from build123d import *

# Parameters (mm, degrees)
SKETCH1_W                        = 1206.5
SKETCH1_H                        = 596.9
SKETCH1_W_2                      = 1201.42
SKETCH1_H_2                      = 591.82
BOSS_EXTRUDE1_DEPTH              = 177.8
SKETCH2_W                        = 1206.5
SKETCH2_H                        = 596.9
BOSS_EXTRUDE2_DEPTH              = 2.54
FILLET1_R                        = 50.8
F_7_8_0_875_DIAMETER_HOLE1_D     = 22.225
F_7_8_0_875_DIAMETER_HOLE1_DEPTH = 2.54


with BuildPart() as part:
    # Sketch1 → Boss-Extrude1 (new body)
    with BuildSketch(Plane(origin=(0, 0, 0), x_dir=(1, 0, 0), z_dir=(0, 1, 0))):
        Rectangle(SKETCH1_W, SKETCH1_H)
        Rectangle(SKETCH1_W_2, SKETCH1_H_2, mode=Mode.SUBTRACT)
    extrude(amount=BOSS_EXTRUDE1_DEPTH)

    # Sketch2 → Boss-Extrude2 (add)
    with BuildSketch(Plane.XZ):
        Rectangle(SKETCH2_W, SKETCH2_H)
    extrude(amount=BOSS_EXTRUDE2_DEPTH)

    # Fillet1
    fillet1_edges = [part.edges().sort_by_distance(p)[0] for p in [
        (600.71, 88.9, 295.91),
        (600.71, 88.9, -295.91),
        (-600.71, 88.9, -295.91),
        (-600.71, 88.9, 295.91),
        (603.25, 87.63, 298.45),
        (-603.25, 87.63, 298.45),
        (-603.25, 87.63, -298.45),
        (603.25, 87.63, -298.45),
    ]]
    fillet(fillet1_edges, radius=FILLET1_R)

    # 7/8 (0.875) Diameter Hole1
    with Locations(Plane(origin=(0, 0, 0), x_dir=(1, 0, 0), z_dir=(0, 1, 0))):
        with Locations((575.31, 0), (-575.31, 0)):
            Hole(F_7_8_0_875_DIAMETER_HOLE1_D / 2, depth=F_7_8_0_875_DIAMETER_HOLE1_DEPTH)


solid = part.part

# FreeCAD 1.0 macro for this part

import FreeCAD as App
import Part
import Sketcher
Q = App.Units.Quantity


def edges_at(feature, points):
    """Names of the edges that pass closest to the given points."""
    edges = feature.Shape.Edges
    near = lambda p: min(range(len(edges)), key=lambda i: edges[i].distToShape(Part.Vertex(*p))[0])
    return sorted({f"Edge{near(p) + 1}" for p in points})


def add_polygon(sketch, points):
    """Adds a closed chain of lines whose ends are joined by coincident constraints."""
    first, n = sketch.GeometryCount, len(points)
    for a, b in zip(points, points[1:] + points[:1]):
        sketch.addGeometry(Part.LineSegment(App.Vector(*a, 0), App.Vector(*b, 0)), False)
    for i in range(n):
        sketch.addConstraint(Sketcher.Constraint("Coincident", first + i, 2, first + (i + 1) % n, 1))

doc = App.newDocument("Part")
body = doc.addObject("PartDesign::Body", "Body")

# Sketch on XZ plane
sketch1 = body.newObject("Sketcher::SketchObject", "Sketch")
sketch1.AttachmentSupport = (doc.getObject("XZ_Plane"), [""])
sketch1.MapMode = "FlatFace"
add_polygon(sketch1, [(-603.25, -298.45), (-603.25, 298.45), (603.25, 298.45), (603.25, -298.45)])  # lines 0-3
add_polygon(sketch1, [(600.71, 295.91), (-600.71, 295.91), (-600.71, -295.91), (600.71, -295.91)])  # lines 4-7
sketch1.addConstraint(Sketcher.Constraint("Vertical", 0))
sketch1.addConstraint(Sketcher.Constraint("Horizontal", 1))
sketch1.addConstraint(Sketcher.Constraint("Vertical", 2))
sketch1.addConstraint(Sketcher.Constraint("Horizontal", 3))
sketch1.addConstraint(Sketcher.Constraint("Horizontal", 4))
sketch1.addConstraint(Sketcher.Constraint("Vertical", 5))
sketch1.addConstraint(Sketcher.Constraint("Horizontal", 6))
sketch1.addConstraint(Sketcher.Constraint("Vertical", 7))
sketch1.addConstraint(Sketcher.Constraint("Symmetric", 0, 2, 2, 2, -1, 1))
sketch1.addConstraint(Sketcher.Constraint("Symmetric", 4, 2, 6, 2, -1, 1))
sketch1.addConstraint(Sketcher.Constraint("DistanceX", 1, 1, 1, 2, Q("47.5 in")))
sketch1.addConstraint(Sketcher.Constraint("DistanceX", 4, 2, 4, 1, Q("47.3 in")))
sketch1.addConstraint(Sketcher.Constraint("DistanceY", 0, 1, 0, 2, Q("23.5 in")))
sketch1.addConstraint(Sketcher.Constraint("DistanceY", 5, 2, 5, 1, Q("23.3 in")))
pad1 = body.newObject("PartDesign::Pad", "Pad")
pad1.Profile = sketch1
pad1.Length = Q("7 in")
pad1.Reversed = True

# Sketch on XZ plane
sketch2 = body.newObject("Sketcher::SketchObject", "Sketch001")
sketch2.AttachmentSupport = (doc.getObject("XZ_Plane"), [""])
sketch2.MapMode = "FlatFace"
add_polygon(sketch2, [(-603.25, 298.45), (-603.25, -298.45), (603.25, -298.45), (603.25, 298.45)])  # lines 0-3
sketch2.addConstraint(Sketcher.Constraint("Vertical", 0))
sketch2.addConstraint(Sketcher.Constraint("Horizontal", 1))
sketch2.addConstraint(Sketcher.Constraint("Vertical", 2))
sketch2.addConstraint(Sketcher.Constraint("Horizontal", 3))
sketch2.addConstraint(Sketcher.Constraint("Symmetric", 0, 2, 2, 2, -1, 1))
sketch2.addConstraint(Sketcher.Constraint("DistanceX", 1, 1, 1, 2, Q("47.5 in")))
sketch2.addConstraint(Sketcher.Constraint("DistanceY", 0, 2, 0, 1, Q("23.5 in")))
pad2 = body.newObject("PartDesign::Pad", "Pad001")
pad2.Profile = sketch2
pad2.Length = Q("0.1 in")
doc.recompute()

fillet = body.newObject("PartDesign::Fillet", "Fillet")
fillet.Base = (pad2, edges_at(pad2, [
    (600.71, 88.9, 295.91),
    (600.71, 88.9, -295.91),
    (-600.71, 88.9, -295.91),
    (-600.71, 88.9, 295.91),
    (603.25, 87.63, 298.45),
    (-603.25, 87.63, 298.45),
    (-603.25, 87.63, -298.45),
    (603.25, 87.63, -298.45),
]))
fillet.Radius = Q("2 in")

# Sketch on XZ plane
sketch3 = body.newObject("Sketcher::SketchObject", "Sketch002")
sketch3.AttachmentSupport = (doc.getObject("XZ_Plane"), [""])
sketch3.MapMode = "FlatFace"
sketch3.addGeometry(Part.Circle(App.Vector(575.31, 0, 0), App.Vector(0, 0, 1), 11.1125), False)
sketch3.addGeometry(Part.Circle(App.Vector(-575.31, 0, 0), App.Vector(0, 0, 1), 11.1125), False)
sketch3.addConstraint(Sketcher.Constraint("Equal", 0, 1))
sketch3.addConstraint(Sketcher.Constraint("Symmetric", 0, 3, 1, 3, -1, 1))
sketch3.addConstraint(Sketcher.Constraint("PointOnObject", 0, 3, -1))
sketch3.addConstraint(Sketcher.Constraint("Diameter", 0, Q("0.875 in")))
sketch3.addConstraint(Sketcher.Constraint("DistanceX", 1, 3, 0, 3, Q("45.3 in")))
doc.recompute()
hole = body.newObject("PartDesign::Hole", "Hole")
hole.Profile = sketch3
hole.ThreadType = "None"
hole.Diameter = Q("0.875 in")
hole.DepthType = "Dimension"
hole.Depth = Q("0.1 in")
hole.DrillPoint = "Flat"
hole.Reversed = True

doc.recompute()
